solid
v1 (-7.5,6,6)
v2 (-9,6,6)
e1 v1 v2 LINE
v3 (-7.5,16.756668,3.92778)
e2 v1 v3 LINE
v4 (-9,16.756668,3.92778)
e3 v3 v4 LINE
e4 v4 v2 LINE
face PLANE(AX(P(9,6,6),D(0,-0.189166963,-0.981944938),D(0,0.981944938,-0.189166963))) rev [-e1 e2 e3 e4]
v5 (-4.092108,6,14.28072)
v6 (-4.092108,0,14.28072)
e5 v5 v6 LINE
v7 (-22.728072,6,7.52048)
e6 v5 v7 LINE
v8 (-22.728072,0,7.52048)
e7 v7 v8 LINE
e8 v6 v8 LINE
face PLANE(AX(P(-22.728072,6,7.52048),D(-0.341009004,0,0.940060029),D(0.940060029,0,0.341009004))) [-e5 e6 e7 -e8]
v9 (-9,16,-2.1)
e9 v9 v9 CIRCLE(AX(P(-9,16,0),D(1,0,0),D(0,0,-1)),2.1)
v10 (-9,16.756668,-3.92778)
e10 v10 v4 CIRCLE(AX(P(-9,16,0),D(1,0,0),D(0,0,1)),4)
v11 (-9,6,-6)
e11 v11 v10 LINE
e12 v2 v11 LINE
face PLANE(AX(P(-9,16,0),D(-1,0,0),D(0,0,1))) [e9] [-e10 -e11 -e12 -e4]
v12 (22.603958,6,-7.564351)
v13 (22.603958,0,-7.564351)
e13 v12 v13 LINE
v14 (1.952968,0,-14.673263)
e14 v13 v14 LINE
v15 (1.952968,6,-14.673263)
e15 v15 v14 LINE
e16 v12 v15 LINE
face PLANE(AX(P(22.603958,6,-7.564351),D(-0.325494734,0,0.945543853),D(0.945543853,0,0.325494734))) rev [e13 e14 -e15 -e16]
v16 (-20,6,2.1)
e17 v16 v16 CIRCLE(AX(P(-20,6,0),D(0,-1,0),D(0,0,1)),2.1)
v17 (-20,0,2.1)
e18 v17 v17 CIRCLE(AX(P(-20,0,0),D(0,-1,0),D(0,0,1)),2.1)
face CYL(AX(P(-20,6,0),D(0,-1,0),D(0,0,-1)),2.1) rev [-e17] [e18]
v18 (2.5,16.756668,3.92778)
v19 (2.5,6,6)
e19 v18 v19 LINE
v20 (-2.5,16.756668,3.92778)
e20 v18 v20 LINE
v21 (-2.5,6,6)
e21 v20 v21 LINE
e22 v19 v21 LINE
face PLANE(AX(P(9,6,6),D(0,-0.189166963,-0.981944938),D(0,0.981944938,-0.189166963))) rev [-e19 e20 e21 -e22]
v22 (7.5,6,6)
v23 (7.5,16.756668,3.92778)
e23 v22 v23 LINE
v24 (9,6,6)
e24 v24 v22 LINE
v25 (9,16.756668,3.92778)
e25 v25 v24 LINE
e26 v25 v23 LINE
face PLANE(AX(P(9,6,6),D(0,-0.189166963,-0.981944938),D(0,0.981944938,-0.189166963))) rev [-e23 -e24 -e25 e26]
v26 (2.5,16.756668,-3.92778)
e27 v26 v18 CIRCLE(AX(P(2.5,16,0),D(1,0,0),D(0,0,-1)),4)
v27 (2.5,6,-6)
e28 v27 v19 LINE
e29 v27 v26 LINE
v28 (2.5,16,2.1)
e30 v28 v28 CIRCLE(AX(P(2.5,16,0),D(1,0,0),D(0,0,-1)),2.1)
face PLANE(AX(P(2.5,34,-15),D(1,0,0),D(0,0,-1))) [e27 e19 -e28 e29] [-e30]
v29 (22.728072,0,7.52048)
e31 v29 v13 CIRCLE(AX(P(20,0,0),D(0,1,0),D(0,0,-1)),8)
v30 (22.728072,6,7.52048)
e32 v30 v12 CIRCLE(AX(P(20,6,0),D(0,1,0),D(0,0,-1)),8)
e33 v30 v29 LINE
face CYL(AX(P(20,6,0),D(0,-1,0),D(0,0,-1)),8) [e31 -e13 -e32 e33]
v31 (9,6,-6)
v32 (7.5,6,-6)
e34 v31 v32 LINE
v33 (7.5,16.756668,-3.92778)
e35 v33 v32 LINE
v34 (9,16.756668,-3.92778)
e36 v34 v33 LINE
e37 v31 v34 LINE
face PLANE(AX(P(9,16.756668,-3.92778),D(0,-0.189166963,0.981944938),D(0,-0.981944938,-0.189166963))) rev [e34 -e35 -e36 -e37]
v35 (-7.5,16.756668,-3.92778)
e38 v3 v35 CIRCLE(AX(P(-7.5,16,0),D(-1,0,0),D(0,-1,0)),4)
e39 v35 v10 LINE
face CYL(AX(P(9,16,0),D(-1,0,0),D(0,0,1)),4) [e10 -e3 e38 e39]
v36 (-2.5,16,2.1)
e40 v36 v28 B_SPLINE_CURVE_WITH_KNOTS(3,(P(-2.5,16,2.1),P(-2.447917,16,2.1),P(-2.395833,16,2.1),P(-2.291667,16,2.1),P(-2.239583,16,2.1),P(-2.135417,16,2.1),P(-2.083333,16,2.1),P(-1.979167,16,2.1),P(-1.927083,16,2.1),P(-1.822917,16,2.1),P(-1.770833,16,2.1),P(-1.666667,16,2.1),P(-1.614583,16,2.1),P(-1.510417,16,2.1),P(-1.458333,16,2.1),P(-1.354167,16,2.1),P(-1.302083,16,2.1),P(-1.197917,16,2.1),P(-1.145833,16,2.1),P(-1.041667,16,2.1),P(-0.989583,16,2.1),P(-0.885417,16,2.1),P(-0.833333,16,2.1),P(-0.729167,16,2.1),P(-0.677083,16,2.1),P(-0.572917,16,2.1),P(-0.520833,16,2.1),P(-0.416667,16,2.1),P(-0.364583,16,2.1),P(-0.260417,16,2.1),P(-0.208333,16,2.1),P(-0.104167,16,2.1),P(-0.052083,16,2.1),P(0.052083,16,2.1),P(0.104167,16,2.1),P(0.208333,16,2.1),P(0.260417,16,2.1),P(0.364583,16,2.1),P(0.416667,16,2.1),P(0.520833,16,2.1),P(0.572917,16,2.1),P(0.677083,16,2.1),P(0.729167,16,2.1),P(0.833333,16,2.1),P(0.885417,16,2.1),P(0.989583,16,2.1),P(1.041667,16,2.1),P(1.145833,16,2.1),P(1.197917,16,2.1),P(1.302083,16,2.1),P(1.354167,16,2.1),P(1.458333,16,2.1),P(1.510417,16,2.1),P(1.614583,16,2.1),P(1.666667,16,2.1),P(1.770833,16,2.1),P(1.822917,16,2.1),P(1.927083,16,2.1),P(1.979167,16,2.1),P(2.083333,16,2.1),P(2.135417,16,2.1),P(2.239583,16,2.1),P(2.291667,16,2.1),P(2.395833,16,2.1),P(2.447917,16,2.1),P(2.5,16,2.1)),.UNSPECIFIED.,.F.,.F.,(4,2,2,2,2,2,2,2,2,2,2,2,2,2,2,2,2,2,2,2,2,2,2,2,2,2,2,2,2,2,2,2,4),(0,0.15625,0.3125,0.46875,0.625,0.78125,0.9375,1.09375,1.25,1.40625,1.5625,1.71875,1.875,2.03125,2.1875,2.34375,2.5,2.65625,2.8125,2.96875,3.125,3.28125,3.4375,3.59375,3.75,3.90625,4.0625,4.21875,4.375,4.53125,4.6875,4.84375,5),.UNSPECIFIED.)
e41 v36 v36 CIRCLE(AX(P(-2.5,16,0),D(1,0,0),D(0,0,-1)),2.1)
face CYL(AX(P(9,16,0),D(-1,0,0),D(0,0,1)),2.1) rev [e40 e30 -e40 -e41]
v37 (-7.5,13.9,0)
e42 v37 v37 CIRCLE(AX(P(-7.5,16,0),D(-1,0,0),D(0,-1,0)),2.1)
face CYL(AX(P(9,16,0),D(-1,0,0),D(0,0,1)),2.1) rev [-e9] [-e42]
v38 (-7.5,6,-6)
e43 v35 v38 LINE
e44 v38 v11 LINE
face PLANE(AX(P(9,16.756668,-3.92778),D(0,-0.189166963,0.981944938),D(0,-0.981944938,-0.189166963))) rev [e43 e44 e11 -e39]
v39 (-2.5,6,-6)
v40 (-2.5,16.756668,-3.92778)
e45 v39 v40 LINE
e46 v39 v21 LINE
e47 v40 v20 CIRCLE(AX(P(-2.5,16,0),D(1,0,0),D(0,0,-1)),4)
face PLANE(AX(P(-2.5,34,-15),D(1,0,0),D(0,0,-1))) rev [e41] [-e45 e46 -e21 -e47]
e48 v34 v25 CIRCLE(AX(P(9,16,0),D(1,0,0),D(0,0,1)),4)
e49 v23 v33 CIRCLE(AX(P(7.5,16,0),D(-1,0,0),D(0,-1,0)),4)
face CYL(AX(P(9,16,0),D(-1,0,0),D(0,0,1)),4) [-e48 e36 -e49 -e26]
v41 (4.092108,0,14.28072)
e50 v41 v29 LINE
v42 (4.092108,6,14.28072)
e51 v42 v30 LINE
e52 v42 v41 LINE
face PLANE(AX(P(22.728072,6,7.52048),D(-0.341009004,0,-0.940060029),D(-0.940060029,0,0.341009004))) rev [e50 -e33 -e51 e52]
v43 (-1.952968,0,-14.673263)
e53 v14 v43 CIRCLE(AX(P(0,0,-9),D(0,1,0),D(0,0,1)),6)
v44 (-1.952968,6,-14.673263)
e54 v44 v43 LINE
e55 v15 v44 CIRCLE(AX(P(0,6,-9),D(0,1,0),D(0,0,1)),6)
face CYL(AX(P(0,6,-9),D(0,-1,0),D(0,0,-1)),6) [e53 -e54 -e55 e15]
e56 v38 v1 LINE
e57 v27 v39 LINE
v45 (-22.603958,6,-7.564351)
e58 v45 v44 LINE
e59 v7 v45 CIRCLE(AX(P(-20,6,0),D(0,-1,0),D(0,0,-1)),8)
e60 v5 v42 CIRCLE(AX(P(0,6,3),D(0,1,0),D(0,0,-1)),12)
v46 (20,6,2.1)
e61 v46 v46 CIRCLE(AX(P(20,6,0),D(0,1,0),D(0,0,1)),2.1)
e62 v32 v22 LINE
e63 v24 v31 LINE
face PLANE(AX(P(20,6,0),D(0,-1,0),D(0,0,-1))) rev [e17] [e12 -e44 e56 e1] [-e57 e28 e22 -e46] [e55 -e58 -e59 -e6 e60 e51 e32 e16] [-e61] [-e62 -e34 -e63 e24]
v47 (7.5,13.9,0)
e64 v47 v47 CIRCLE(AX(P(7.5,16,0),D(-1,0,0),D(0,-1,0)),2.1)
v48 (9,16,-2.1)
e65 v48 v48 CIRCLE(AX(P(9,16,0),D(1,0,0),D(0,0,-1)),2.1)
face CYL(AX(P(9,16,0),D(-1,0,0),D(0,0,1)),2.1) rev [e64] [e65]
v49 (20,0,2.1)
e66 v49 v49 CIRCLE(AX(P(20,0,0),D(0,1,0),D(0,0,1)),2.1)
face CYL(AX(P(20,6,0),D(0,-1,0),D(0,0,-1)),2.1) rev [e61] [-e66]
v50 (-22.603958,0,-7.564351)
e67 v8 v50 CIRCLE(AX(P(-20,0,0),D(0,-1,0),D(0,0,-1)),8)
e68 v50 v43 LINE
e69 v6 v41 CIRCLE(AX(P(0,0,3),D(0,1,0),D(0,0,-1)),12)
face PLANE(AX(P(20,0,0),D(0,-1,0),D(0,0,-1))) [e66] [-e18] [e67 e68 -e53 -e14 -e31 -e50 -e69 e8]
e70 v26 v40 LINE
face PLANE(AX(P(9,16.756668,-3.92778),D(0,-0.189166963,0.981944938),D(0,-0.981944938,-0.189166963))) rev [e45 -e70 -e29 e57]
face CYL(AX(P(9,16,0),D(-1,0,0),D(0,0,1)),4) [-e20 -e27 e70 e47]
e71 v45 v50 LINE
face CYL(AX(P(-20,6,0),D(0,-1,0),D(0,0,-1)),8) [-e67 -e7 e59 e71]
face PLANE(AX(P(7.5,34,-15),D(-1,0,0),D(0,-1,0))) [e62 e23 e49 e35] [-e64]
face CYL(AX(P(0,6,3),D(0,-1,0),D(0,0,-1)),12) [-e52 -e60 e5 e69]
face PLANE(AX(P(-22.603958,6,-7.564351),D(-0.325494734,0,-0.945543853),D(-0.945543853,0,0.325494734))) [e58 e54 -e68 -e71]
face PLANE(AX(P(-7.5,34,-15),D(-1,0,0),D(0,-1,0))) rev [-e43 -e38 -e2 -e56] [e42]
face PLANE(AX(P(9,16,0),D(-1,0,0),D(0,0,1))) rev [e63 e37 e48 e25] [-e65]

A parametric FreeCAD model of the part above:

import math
import FreeCAD as App
import Part
import Sketcher
from FreeCAD import Vector


def add_polygon(sketch, points):
    """Adds a closed chain of lines whose ends are joined by coincident constraints."""
    first, n = sketch.GeometryCount, len(points)
    for a, b in zip(points, points[1:] + points[:1]):
        sketch.addGeometry(Part.LineSegment(App.Vector(*a, 0), App.Vector(*b, 0)), False)
    for i in range(n):
        sketch.addConstraint(Sketcher.Constraint("Coincident", first + i, 2, first + (i + 1) % n, 1))

doc = App.newDocument("Part")
body = doc.addObject("PartDesign::Body", "Body")

# Sketch on XZ plane
sketch1 = doc.addObject("Sketcher::SketchObject", "Sketch")
body.addObject(sketch1)
sketch1.AttachmentSupport = (doc.XZ_Plane, [""])
sketch1.MapMode = "FlatFace"
sketch1.addGeometry(Part.LineSegment(Vector(22.6, -7.6, 0), Vector(2, -14.7, 0)), False)
sketch1.addGeometry(Part.ArcOfCircle(Part.Circle(Vector(0, -9, 0), Vector(0, 0, 1), 6), math.radians(-90), math.radians(-71)), False)
sketch1.addGeometry(Part.LineSegment(Vector(0, -15, 0), Vector(0, 15, 0)), False)
sketch1.addGeometry(Part.ArcOfCircle(Part.Circle(Vector(0, 3, 0), Vector(0, 0, 1), 12), math.radians(70.06), math.radians(90)), False)
sketch1.addGeometry(Part.LineSegment(Vector(4.1, 14.3, 0), Vector(22.7, 7.5, 0)), False)
sketch1.addGeometry(Part.ArcOfCircle(Part.Circle(Vector(20, 0, 0), Vector(0, 0, 1), 8), math.radians(-71), math.radians(70)), False)
sketch1.addGeometry(Part.Circle(Vector(20, 0, 0), Vector(0, 0, 1), 2.1), False)
sketch1.addConstraint(Sketcher.Constraint("Tangent", 0, 2, 1, 2))
sketch1.addConstraint(Sketcher.Constraint("Coincident", 1, 1, 2, 1))
sketch1.addConstraint(Sketcher.Constraint("Coincident", 2, 2, 3, 2))
sketch1.addConstraint(Sketcher.Constraint("Tangent", 3, 1, 4, 1))
sketch1.addConstraint(Sketcher.Constraint("Tangent", 4, 2, 5, 2))
sketch1.addConstraint(Sketcher.Constraint("Tangent", 5, 1, 0, 1))
sketch1.addConstraint(Sketcher.Constraint("Vertical", 2))
sketch1.addConstraint(Sketcher.Constraint("Coincident", 6, 3, 5, 3))
sketch1.addConstraint(Sketcher.Constraint("Symmetric", 1, 1, 2, 2, -1, 1))
sketch1.addConstraint(Sketcher.Constraint("PointOnObject", 1, 3, -2))
sketch1.addConstraint(Sketcher.Constraint("PointOnObject", 3, 3, -2))
sketch1.addConstraint(Sketcher.Constraint("PointOnObject", 5, 3, -1))
sketch1.addConstraint(Sketcher.Constraint("Radius", 1, 6.0))
sketch1.addConstraint(Sketcher.Constraint("Radius", 3, 12.0))
sketch1.addConstraint(Sketcher.Constraint("Radius", 5, 8.0))
sketch1.addConstraint(Sketcher.Constraint("Diameter", 6, 4.2))
sketch1.addConstraint(Sketcher.Constraint("DistanceY", 2, 1, 2, 2, 30.0))
sketch1.addConstraint(Sketcher.Constraint("DistanceX", -1, 1, 5, 3, 20.0))
pad1 = doc.addObject("PartDesign::Pad", "Pad")
body.addObject(pad1)
pad1.Profile = sketch1
pad1.Length = 6
pad1.Reversed = True
doc.recompute()

mirrored = doc.addObject("PartDesign::Mirrored", "Mirrored")
body.addObject(mirrored)
mirrored.Originals = [pad1]
mirrored.MirrorPlane = (doc.YZ_Plane, [""])
body.Tip = mirrored

# Sketch on YZ plane
sketch2 = doc.addObject("Sketcher::SketchObject", "Sketch001")
body.addObject(sketch2)
sketch2.AttachmentSupport = (doc.YZ_Plane, [""])
sketch2.MapMode = "FlatFace"
sketch2.addGeometry(Part.LineSegment(Vector(16.8, 3.9, 0), Vector(6, 6, 0)), False)
sketch2.addGeometry(Part.LineSegment(Vector(6, 6, 0), Vector(6, -6, 0)), False)
sketch2.addGeometry(Part.LineSegment(Vector(6, -6, 0), Vector(16.8, -3.9, 0)), False)
sketch2.addGeometry(Part.ArcOfCircle(Part.Circle(Vector(16, 0, 0), Vector(0, 0, 1), 4), math.radians(-79), math.radians(79)), False)
sketch2.addGeometry(Part.Circle(Vector(16, 0, 0), Vector(0, 0, 1), 2.1), False)
sketch2.addConstraint(Sketcher.Constraint("Coincident", 0, 2, 1, 1))
sketch2.addConstraint(Sketcher.Constraint("Coincident", 1, 2, 2, 1))
sketch2.addConstraint(Sketcher.Constraint("Tangent", 2, 2, 3, 1))
sketch2.addConstraint(Sketcher.Constraint("Tangent", 3, 2, 0, 1))
sketch2.addConstraint(Sketcher.Constraint("Vertical", 1))
sketch2.addConstraint(Sketcher.Constraint("Coincident", 4, 3, 3, 3))
sketch2.addConstraint(Sketcher.Constraint("Symmetric", 2, 2, 3, 2, -1))
sketch2.addConstraint(Sketcher.Constraint("Radius", 3, 4.0))
sketch2.addConstraint(Sketcher.Constraint("Diameter", 4, 4.2))
sketch2.addConstraint(Sketcher.Constraint("DistanceY", 1, 2, 1, 1, 12.0))
sketch2.addConstraint(Sketcher.Constraint("DistanceX", -1, 1, 3, 3, 16.0))
sketch2.addConstraint(Sketcher.Constraint("DistanceX", -1, 1, 0, 2, 6.0))
pad2 = doc.addObject("PartDesign::Pad", "Pad001")
body.addObject(pad2)
pad2.Profile = sketch2
pad2.Length = 18
pad2.Midplane = True

# Sketch on XY plane
sketch3 = doc.addObject("Sketcher::SketchObject", "Sketch002")
body.addObject(sketch3)
sketch3.AttachmentSupport = (doc.XY_Plane, [""])
sketch3.MapMode = "FlatFace"
add_polygon(sketch3, [(-8, 34), (-8, 6), (-2, 6), (-2, 34)])  # lines 0-3
sketch3.addConstraint(Sketcher.Constraint("Vertical", 0))
sketch3.addConstraint(Sketcher.Constraint("Horizontal", 1))
sketch3.addConstraint(Sketcher.Constraint("Vertical", 2))
sketch3.addConstraint(Sketcher.Constraint("Horizontal", 3))
sketch3.addConstraint(Sketcher.Constraint("DistanceX", 1, 1, 1, 2, 5.0))
sketch3.addConstraint(Sketcher.Constraint("DistanceY", 0, 2, 0, 1, 28.0))
sketch3.addConstraint(Sketcher.Constraint("DistanceY", -1, 1, 0, 2, 6.0))
sketch3.addConstraint(Sketcher.Constraint("DistanceX", 0, 2, -1, 1, 7.5))
pocket1 = doc.addObject("PartDesign::Pocket", "Pocket")
body.addObject(pocket1)
pocket1.Profile = sketch3
pocket1.Length = 77.073298
pocket1.Midplane = True
doc.recompute()

mirrored2 = doc.addObject("PartDesign::Mirrored", "Mirrored001")
body.addObject(mirrored2)
mirrored2.Originals = [pocket1]
mirrored2.MirrorPlane = (doc.YZ_Plane, [""])
body.Tip = mirrored2

doc.recompute()
